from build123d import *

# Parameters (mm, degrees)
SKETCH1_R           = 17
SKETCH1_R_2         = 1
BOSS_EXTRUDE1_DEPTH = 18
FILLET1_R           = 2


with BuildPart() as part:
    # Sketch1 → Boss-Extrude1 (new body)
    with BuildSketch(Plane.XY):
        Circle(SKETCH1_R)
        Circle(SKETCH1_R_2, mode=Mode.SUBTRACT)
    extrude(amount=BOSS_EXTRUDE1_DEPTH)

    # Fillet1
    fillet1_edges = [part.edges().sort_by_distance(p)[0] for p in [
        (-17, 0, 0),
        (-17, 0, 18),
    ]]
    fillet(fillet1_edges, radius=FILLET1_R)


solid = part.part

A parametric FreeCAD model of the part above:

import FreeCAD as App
import Part
import Sketcher

V = App.Vector
Q = App.Units.Quantity


def edges_at(feature, points):
    """Names of the edges that pass closest to the given points."""
    edges = feature.Shape.Edges
    near = lambda p: min(range(len(edges)), key=lambda i: edges[i].distToShape(Part.Vertex(*p))[0])
    return sorted({f"Edge{near(p) + 1}" for p in points})

doc = App.newDocument("Part")
params = doc.addObject("Spreadsheet::Sheet", "Params")
for row, (alias, value) in enumerate([
    ("sketch1_diameter", "34 mm"),
    ("sketch1_diameter2", "2 mm"),
    ("pad1_length", "18 mm"),
    ("fillet_radius", "2 mm"),
], start=1):
    params.set(f"A{row}", alias)
    params.set(f"B{row}", "=" + value)
    params.setAlias(f"B{row}", alias)

body = doc.addObject("PartDesign::Body", "Body")

sketch1 = body.newObject("Sketcher::SketchObject", "Sketch")
sketch1.AttachmentSupport = (doc.getObject("XY_Plane"), [""])
sketch1.MapMode = "FlatFace"
sketch1.addGeometry([
    Part.Circle(V(0, 0, 0), V(0, 0, 1), 17),
    Part.Circle(V(0, 0, 0), V(0, 0, 1), 1),
], False)
sketch1.addConstraint([
    Sketcher.Constraint("Coincident", 0, 3, -1, 1),
    Sketcher.Constraint("Coincident", 1, 3, -1, 1),
    Sketcher.Constraint("Diameter", 0, Q("34 mm")),
    Sketcher.Constraint("Diameter", 1, Q("2 mm")),
])
sketch1.setExpression("Constraints[2]", "Params.sketch1_diameter")
sketch1.setExpression("Constraints[3]", "Params.sketch1_diameter2")
pad1 = body.newObject("PartDesign::Pad", "Pad")
pad1.Profile = sketch1
pad1.setExpression("Length", "Params.pad1_length")
doc.recompute()

fillet = body.newObject("PartDesign::Fillet", "Fillet")
fillet.Base = (pad1, edges_at(pad1, [(-17, 0, 0), (-17, 0, 18)]))
fillet.setExpression("Radius", "Params.fillet_radius")

doc.recompute()
